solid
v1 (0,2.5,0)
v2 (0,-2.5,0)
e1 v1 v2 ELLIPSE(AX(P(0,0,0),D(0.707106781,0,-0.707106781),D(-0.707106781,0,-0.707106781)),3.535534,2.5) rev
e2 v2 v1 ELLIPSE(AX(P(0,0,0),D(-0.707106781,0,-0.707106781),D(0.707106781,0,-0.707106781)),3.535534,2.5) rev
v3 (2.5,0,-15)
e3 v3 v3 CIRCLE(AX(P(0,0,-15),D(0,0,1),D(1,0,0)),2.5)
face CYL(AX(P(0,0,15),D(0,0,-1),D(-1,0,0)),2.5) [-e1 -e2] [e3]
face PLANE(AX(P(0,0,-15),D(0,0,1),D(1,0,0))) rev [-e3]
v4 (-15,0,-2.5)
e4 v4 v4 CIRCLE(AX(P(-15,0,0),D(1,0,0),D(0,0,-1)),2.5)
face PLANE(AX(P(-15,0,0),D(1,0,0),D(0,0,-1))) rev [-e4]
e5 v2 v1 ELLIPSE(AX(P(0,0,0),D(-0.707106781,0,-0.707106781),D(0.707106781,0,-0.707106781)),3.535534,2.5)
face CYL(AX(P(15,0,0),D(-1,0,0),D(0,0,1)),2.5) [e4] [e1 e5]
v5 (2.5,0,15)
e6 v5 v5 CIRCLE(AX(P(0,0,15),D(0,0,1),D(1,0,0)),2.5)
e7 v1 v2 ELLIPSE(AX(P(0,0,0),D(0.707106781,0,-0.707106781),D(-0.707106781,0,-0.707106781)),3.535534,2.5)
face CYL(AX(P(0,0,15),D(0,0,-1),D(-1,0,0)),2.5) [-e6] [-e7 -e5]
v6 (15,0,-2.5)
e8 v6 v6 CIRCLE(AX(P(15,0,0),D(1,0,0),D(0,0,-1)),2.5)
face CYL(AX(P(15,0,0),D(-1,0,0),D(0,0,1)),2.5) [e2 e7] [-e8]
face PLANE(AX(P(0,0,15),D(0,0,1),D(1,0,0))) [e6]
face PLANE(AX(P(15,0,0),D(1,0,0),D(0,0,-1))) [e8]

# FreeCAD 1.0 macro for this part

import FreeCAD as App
import Part
import Sketcher
from FreeCAD import Vector

doc = App.newDocument("Part")
body = doc.addObject("PartDesign::Body", "Body")

sketch1 = doc.addObject("Sketcher::SketchObject", "Sketch")
body.addObject(sketch1)
sketch1.AttachmentSupport = (doc.XY_Plane, [""])
sketch1.MapMode = "FlatFace"
sketch1.addGeometry(Part.Circle(Vector(0, 0, 0), Vector(0, 0, 1), 2.5), False)
sketch1.addConstraint(Sketcher.Constraint("Coincident", 0, 3, -1, 1))
sketch1.addConstraint(Sketcher.Constraint("Diameter", 0, 5.0))
pad1 = doc.addObject("PartDesign::Pad", "Pad")
body.addObject(pad1)
pad1.Profile = sketch1
pad1.Length = 30
pad1.Midplane = True

sketch2 = doc.addObject("Sketcher::SketchObject", "Sketch001")
body.addObject(sketch2)
sketch2.AttachmentSupport = (doc.YZ_Plane, [""])
sketch2.MapMode = "FlatFace"
sketch2.addGeometry(Part.Circle(Vector(0, 0, 0), Vector(0, 0, 1), 2.5), False)
sketch2.addConstraint(Sketcher.Constraint("Coincident", 0, 3, -1, 1))
sketch2.addConstraint(Sketcher.Constraint("Diameter", 0, 5.0))
pad2 = doc.addObject("PartDesign::Pad", "Pad001")
body.addObject(pad2)
pad2.Profile = sketch2
pad2.Length = 30
pad2.Midplane = True

doc.recompute()
